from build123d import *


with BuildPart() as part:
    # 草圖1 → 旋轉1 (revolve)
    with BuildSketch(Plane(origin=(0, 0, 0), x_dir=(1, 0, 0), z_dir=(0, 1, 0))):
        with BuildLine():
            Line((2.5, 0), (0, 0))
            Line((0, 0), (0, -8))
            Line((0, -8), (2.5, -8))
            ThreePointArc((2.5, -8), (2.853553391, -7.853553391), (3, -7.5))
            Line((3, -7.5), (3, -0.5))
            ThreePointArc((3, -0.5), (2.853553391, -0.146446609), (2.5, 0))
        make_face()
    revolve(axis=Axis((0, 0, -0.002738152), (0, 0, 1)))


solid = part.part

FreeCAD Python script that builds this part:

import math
import FreeCAD as App
import Part
import Sketcher
from FreeCAD import Vector

doc = App.newDocument("Part")
body = doc.addObject("PartDesign::Body", "Body")

sketch1 = body.newObject("Sketcher::SketchObject", "Sketch")
sketch1.AttachmentSupport = (doc.getObject("XZ_Plane"), [""])
sketch1.MapMode = "FlatFace"
sketch1.addGeometry(Part.LineSegment(Vector(2.5, 0, 0), Vector(0, 0, 0)), False)
sketch1.addGeometry(Part.LineSegment(Vector(0, 0, 0), Vector(0, 8, 0)), False)
sketch1.addGeometry(Part.LineSegment(Vector(0, 8, 0), Vector(2.5, 8, 0)), False)
sketch1.addGeometry(Part.ArcOfCircle(Part.Circle(Vector(2.5, 7.5, 0), Vector(0, 0, 1), 0.5), math.radians(0), math.radians(90)), False)
sketch1.addGeometry(Part.LineSegment(Vector(3, 7.5, 0), Vector(3, 0.5, 0)), False)
sketch1.addGeometry(Part.ArcOfCircle(Part.Circle(Vector(2.5, 0.5, 0), Vector(0, 0, 1), 0.5), math.radians(-90), math.radians(0)), False)
sketch1.addConstraint(Sketcher.Constraint("Coincident", 0, 2, 1, 1))
sketch1.addConstraint(Sketcher.Constraint("Coincident", 1, 2, 2, 1))
sketch1.addConstraint(Sketcher.Constraint("Tangent", 2, 2, 3, 2))
sketch1.addConstraint(Sketcher.Constraint("Tangent", 3, 1, 4, 1))
sketch1.addConstraint(Sketcher.Constraint("Tangent", 4, 2, 5, 2))
sketch1.addConstraint(Sketcher.Constraint("Tangent", 5, 1, 0, 1))
sketch1.addConstraint(Sketcher.Constraint("Horizontal", 0))
sketch1.addConstraint(Sketcher.Constraint("Vertical", 1))
sketch1.addConstraint(Sketcher.Constraint("Horizontal", 2))
sketch1.addConstraint(Sketcher.Constraint("Vertical", 4))
sketch1.addConstraint(Sketcher.Constraint("Coincident", 0, 2, -1, 1))
sketch1.addConstraint(Sketcher.Constraint("Equal", 3, 5))
sketch1.addConstraint(Sketcher.Constraint("Radius", 3, 0.5))
sketch1.addConstraint(Sketcher.Constraint("DistanceY", 1, 1, 1, 2, 8.0))
sketch1.addConstraint(Sketcher.Constraint("DistanceX", 0, 2, 0, 1, 2.5))
revolution = body.newObject("PartDesign::Revolution", "Revolution")
revolution.Profile = sketch1
revolution.ReferenceAxis = (sketch1, ["V_Axis"])
revolution.Angle = 360

doc.recompute()
